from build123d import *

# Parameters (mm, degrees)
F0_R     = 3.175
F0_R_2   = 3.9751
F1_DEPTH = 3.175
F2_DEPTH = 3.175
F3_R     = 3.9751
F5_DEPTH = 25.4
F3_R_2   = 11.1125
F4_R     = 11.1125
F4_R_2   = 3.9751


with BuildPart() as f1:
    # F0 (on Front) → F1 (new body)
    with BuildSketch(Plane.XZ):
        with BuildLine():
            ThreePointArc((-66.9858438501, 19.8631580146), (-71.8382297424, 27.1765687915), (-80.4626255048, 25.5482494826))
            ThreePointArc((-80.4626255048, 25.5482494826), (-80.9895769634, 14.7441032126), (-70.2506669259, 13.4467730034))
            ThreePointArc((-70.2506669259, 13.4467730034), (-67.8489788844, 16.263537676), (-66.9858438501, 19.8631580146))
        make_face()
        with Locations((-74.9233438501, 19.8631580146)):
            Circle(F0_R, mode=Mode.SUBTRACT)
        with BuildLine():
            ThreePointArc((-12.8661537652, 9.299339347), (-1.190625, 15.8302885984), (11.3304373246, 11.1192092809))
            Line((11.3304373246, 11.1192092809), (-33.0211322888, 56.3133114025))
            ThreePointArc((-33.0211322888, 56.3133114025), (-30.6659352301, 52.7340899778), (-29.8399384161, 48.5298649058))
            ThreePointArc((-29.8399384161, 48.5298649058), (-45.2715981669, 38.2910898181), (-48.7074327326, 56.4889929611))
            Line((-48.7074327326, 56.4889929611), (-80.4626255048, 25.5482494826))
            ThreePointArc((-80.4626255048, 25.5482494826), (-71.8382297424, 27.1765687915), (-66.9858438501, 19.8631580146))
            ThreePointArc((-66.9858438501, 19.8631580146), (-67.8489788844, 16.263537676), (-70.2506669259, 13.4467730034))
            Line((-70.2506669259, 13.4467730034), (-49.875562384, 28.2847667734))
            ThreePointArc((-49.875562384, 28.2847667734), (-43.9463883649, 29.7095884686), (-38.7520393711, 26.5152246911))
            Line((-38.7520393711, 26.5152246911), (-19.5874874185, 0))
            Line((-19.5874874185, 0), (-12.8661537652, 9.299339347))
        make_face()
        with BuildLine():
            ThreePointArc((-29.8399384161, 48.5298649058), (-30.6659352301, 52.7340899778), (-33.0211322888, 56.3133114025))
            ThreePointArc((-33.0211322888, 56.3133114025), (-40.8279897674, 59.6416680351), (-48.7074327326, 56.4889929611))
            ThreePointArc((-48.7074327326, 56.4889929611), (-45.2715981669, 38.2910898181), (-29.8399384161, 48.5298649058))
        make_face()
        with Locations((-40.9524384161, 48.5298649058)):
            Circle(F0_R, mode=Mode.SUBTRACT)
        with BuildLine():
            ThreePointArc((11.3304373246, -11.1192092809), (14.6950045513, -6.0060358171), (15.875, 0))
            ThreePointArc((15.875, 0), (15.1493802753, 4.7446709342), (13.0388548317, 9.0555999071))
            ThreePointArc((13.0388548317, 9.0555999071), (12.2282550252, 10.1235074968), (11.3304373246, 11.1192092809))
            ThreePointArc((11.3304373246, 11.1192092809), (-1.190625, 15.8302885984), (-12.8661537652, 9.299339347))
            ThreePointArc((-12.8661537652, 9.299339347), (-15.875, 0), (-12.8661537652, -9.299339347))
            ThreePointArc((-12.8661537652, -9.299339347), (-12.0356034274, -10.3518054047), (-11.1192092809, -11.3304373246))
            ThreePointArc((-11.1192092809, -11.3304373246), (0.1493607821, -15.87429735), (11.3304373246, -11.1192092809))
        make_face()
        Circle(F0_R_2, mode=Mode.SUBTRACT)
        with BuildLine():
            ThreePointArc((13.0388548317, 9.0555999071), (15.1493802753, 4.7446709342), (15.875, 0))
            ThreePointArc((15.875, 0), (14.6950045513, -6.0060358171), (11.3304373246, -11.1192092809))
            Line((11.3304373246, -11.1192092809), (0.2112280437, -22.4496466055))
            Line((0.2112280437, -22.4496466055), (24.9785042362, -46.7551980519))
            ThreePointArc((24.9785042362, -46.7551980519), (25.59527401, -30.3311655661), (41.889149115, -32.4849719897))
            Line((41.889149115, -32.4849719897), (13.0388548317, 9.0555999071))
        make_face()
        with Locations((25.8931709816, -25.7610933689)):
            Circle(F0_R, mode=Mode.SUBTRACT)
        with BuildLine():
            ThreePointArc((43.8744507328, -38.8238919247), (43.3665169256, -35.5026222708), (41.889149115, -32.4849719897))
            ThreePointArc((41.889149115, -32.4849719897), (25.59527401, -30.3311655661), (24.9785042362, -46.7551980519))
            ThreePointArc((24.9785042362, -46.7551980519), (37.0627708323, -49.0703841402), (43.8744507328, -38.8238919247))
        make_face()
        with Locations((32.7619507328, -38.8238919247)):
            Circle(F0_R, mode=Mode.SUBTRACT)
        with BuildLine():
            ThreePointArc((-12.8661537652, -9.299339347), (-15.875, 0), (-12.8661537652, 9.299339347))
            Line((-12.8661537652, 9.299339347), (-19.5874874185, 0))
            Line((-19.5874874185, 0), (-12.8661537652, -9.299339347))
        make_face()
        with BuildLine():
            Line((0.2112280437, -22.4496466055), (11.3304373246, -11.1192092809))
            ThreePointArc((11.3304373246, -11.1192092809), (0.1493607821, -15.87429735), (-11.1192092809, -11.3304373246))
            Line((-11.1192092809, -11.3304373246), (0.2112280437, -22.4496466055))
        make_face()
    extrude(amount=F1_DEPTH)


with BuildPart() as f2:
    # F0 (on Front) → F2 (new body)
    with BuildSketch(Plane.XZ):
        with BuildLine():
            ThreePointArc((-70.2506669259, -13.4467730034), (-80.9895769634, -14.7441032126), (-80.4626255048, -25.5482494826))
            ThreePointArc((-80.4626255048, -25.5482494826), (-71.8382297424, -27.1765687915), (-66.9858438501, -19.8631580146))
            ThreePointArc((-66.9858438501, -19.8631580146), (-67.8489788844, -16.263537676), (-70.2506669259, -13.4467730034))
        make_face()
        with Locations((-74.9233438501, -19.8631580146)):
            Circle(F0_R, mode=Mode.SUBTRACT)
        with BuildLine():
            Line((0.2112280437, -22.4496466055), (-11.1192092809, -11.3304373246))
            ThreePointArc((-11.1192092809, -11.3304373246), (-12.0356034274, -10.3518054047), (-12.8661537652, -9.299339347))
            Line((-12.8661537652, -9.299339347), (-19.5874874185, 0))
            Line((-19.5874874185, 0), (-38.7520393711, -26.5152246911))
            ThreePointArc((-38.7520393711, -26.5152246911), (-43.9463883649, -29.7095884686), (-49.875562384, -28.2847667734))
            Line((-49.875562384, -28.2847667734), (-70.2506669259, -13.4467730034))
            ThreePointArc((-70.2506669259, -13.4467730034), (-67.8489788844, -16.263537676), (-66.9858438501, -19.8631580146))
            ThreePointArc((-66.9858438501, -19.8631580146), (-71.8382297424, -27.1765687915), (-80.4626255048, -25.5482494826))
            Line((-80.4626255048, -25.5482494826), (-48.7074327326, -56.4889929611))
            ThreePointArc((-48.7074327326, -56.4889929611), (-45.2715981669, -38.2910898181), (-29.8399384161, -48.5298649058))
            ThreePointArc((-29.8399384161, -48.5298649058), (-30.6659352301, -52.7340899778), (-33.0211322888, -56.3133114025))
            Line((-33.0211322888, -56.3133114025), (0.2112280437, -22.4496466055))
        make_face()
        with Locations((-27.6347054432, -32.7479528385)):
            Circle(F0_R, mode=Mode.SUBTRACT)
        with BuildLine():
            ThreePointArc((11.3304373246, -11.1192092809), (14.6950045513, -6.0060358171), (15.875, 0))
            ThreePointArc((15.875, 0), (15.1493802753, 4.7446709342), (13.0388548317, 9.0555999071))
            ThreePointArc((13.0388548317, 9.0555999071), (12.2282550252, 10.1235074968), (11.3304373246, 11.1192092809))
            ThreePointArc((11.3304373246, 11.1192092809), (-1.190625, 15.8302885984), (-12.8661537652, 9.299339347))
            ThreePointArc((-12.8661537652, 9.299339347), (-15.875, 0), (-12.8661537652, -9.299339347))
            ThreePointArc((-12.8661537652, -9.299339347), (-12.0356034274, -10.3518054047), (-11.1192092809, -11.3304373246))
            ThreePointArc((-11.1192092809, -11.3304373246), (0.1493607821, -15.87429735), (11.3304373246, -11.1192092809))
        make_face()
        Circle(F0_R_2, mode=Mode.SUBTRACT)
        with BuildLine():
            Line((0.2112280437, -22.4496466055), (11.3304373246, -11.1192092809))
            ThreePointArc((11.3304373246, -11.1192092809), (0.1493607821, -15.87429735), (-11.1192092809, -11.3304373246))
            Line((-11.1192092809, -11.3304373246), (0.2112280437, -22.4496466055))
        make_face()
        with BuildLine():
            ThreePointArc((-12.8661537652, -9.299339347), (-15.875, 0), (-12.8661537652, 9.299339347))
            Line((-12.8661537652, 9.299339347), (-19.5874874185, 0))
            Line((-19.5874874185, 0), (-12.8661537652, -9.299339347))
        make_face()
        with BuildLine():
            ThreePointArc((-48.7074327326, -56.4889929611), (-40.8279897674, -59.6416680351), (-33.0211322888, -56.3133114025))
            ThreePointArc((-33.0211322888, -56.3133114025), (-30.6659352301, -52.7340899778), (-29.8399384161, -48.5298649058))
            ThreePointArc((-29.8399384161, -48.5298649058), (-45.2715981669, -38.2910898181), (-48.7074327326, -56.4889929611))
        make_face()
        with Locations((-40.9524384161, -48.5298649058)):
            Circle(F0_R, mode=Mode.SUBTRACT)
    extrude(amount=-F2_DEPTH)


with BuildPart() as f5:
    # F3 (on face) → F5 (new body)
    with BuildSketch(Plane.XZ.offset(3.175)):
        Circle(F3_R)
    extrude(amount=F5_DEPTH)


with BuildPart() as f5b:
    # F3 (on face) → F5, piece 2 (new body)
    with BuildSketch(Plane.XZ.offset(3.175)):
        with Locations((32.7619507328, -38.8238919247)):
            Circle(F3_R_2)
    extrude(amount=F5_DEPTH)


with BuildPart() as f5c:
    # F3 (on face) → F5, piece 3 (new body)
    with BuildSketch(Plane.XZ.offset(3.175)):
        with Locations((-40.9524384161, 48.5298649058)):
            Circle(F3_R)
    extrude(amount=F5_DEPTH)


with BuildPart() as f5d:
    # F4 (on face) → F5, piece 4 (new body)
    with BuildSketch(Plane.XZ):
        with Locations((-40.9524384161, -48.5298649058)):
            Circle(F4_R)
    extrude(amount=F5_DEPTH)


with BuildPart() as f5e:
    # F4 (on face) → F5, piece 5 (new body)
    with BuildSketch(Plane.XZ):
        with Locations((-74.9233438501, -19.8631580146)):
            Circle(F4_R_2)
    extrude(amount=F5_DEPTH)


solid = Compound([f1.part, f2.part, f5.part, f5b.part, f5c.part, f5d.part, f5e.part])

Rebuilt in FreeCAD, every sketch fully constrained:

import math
import FreeCAD as App
import Part
import Sketcher

V = App.Vector
Q = App.Units.Quantity

doc = App.newDocument("Part")
body = doc.addObject("PartDesign::Body", "Body")

# Sketch on XZ plane
sketch1 = doc.addObject("Sketcher::SketchObject", "Sketch")
body.addObject(sketch1)
sketch1.AttachmentSupport = (doc.XZ_Plane, [""])
sketch1.MapMode = "FlatFace"
sketch1.addGeometry([
    Part.ArcOfCircle(Part.Circle(V(-74.9, 19.9, 0), V(0, 0, 1), 7.9), math.radians(134), math.radians(306)),  # 0
    Part.LineSegment(V(-70.3, 13.4, 0), V(-49.9, 28.3, 0)),  # 1
    Part.ArcOfCircle(Part.Circle(V(-45.2, 21.9, 0), V(0, 0, 1), 8), math.radians(36), math.radians(126)),  # 2
    Part.LineSegment(V(-38.8, 26.5, 0), V(-19.6, 0, 0)),  # 3
    Part.LineSegment(V(-19.6, 0, 0), V(-12.9, -9.3, 0)),  # 4
    Part.ArcOfCircle(Part.Circle(V(0, 0, 0), V(0, 0, 1), 15.9), math.radians(-144.14), math.radians(-134.46)),  # 5
    Part.LineSegment(V(-11.1, -11.3, 0), V(0.2, -22.4, 0)),  # 6
    Part.LineSegment(V(0.2, -22.4, 0), V(25, -46.8, 0)),  # 7
    Part.ArcOfCircle(Part.Circle(V(32.8, -38.8, 0), V(0, 0, 1), 11.1), math.radians(-134), math.radians(0)),  # 8
    Part.ArcOfCircle(Part.Circle(V(32.8, -38.8, 0), V(0, 0, 1), 11.1), math.radians(0), math.radians(35)),  # 9
    Part.LineSegment(V(41.9, -32.5, 0), V(13, 9.1, 0)),  # 10
    Part.ArcOfCircle(Part.Circle(V(0, 0, 0), V(0, 0, 1), 15.9), math.radians(34.78), math.radians(44.46)),  # 11
    Part.LineSegment(V(11.3, 11.1, 0), V(-33, 56.3, 0)),  # 12
    Part.ArcOfCircle(Part.Circle(V(-41, 48.5, 0), V(0, 0, 1), 11.1), math.radians(44), math.radians(134)),  # 13
    Part.LineSegment(V(-48.7, 56.5, 0), V(-80.5, 25.5, 0)),  # 14
    Part.Circle(V(32.8, -38.8, 0), V(0, 0, 1), 3.2),  # 15
    Part.Circle(V(25.9, -25.8, 0), V(0, 0, 1), 3.2),  # 16
    Part.Circle(V(0, 0, 0), V(0, 0, 1), 4),  # 17
    Part.Circle(V(-74.9, 19.9, 0), V(0, 0, 1), 3.2),  # 18
    Part.Circle(V(-41, 48.5, 0), V(0, 0, 1), 3.2),  # 19
], False)
sketch1.addConstraint([
    Sketcher.Constraint("Tangent", 0, 2, 1, 1),
    Sketcher.Constraint("Tangent", 1, 2, 2, 2),
    Sketcher.Constraint("Tangent", 2, 1, 3, 1),
    Sketcher.Constraint("Coincident", 3, 2, 4, 1),
    Sketcher.Constraint("Tangent", 4, 2, 5, 1),
    Sketcher.Constraint("Tangent", 5, 2, 6, 1),
    Sketcher.Constraint("Coincident", 6, 2, 7, 1),
    Sketcher.Constraint("Tangent", 7, 2, 8, 1),
    Sketcher.Constraint("Tangent", 8, 2, 9, 1),
    Sketcher.Constraint("Tangent", 9, 2, 10, 1),
    Sketcher.Constraint("Tangent", 10, 2, 11, 1),
    Sketcher.Constraint("Tangent", 11, 2, 12, 1),
    Sketcher.Constraint("Tangent", 12, 2, 13, 1),
    Sketcher.Constraint("Tangent", 13, 2, 14, 1),
    Sketcher.Constraint("Tangent", 14, 2, 0, 1),
    Sketcher.Constraint("Coincident", 5, 3, -1, 1),
    Sketcher.Constraint("Coincident", 11, 3, -1, 1),
    Sketcher.Constraint("Coincident", 17, 3, -1, 1),
    Sketcher.Constraint("Coincident", 15, 3, 8, 3),
    Sketcher.Constraint("Coincident", 18, 3, 0, 3),
    Sketcher.Constraint("Coincident", 19, 3, 13, 3),
    Sketcher.Constraint("Equal", 8, 9),
    Sketcher.Constraint("Equal", 5, 11),
    Sketcher.Constraint("Equal", 9, 13),
    Sketcher.Constraint("Equal", 15, 16),
    Sketcher.Constraint("Equal", 16, 18),
    Sketcher.Constraint("Equal", 18, 19),
    Sketcher.Constraint("PointOnObject", 3, 2, -1),
    Sketcher.Constraint("Parallel", 3, 4),
    Sketcher.Constraint("Parallel", 6, 7),
    Sketcher.Constraint("Horizontal", 15, 3, 8, 2),
    Sketcher.Constraint("Diameter", 15, Q("0.25 in")),
    Sketcher.Constraint("Diameter", 17, Q("0.313 in")),
    Sketcher.Constraint("Radius", 0, Q("0.3125 in")),
    Sketcher.Constraint("Radius", 2, Q("0.313 in")),
    Sketcher.Constraint("Radius", 5, Q("0.625 in")),
    Sketcher.Constraint("Radius", 8, Q("0.4375 in")),
    Sketcher.Constraint("Distance", 6, Q("0.625 in")),
    Sketcher.Constraint("DistanceY", 5, 2, 10, 2, Q("0.8025999 in")),
    Sketcher.Constraint("DistanceY", 7, 2, -1, 1, Q("46.755198 mm")),
    Sketcher.Constraint("DistanceY", 9, 3, 16, 3, Q("13.062799 mm")),
    Sketcher.Constraint("DistanceY", 1, 2, 13, 3, Q("20.245098 mm")),
    Sketcher.Constraint("DistanceX", 13, 3, 2, 1, Q("2.200399 mm")),
    Sketcher.Constraint("DistanceX", 13, 2, 12, 2, Q("15.6863 mm")),
    Sketcher.Constraint("Distance", 3, Q("32.716008 mm")),
    Sketcher.Constraint("Distance", 4, Q("11.474059 mm")),
    Sketcher.Constraint("DistanceY", -1, 1, 0, 3, Q("19.863158 mm")),
    Sketcher.Constraint("DistanceX", -1, 1, 16, 3, Q("25.893171 mm")),
])
pad1 = doc.addObject("PartDesign::Pad", "Pad")
body.addObject(pad1)
pad1.Profile = sketch1
pad1.Length = Q("0.125 in")
body2 = doc.addObject("PartDesign::Body", "Body001")

# Sketch on XZ plane
sketch2 = doc.addObject("Sketcher::SketchObject", "Sketch001")
body2.addObject(sketch2)
sketch2.AttachmentSupport = (doc.getObject("XZ_Plane001"), [""])
sketch2.MapMode = "FlatFace"
sketch2.addGeometry([
    Part.ArcOfCircle(Part.Circle(V(-74.9, -19.9, 0), V(0, 0, 1), 7.9), math.radians(54), math.radians(226)),  # 0
    Part.LineSegment(V(-80.5, -25.5, 0), V(-48.7, -56.5, 0)),  # 1
    Part.ArcOfCircle(Part.Circle(V(-41, -48.5, 0), V(0, 0, 1), 11.1), math.radians(-134), math.radians(-44)),  # 2
    Part.LineSegment(V(-33, -56.3, 0), V(11.3, -11.1, 0)),  # 3
    Part.ArcOfCircle(Part.Circle(V(0, 0, 0), V(0, 0, 1), 15.9), math.radians(-44), math.radians(0)),  # 4
    Part.ArcOfCircle(Part.Circle(V(0, 0, 0), V(0, 0, 1), 15.9), math.radians(0), math.radians(35)),  # 5
    Part.ArcOfCircle(Part.Circle(V(0, 0, 0), V(0, 0, 1), 15.9), math.radians(34.78), math.radians(44.46)),  # 6
    Part.ArcOfCircle(Part.Circle(V(0, 0, 0), V(0, 0, 1), 15.9), math.radians(44), math.radians(144)),  # 7
    Part.LineSegment(V(-12.9, 9.3, 0), V(-19.6, 0, 0)),  # 8
    Part.LineSegment(V(-19.6, 0, 0), V(-38.8, -26.5, 0)),  # 9
    Part.ArcOfCircle(Part.Circle(V(-45.2, -21.9, 0), V(0, 0, 1), 8), math.radians(-126), math.radians(-36)),  # 10
    Part.LineSegment(V(-49.9, -28.3, 0), V(-70.3, -13.4, 0)),  # 11
    Part.Circle(V(-41, -48.5, 0), V(0, 0, 1), 3.2),  # 12
    Part.Circle(V(-27.6, -32.7, 0), V(0, 0, 1), 3.2),  # 13
    Part.Circle(V(-74.9, -19.9, 0), V(0, 0, 1), 3.2),  # 14
    Part.Circle(V(0, 0, 0), V(0, 0, 1), 4),  # 15
], False)
sketch2.addConstraint([
    Sketcher.Constraint("Tangent", 0, 2, 1, 1),
    Sketcher.Constraint("Tangent", 1, 2, 2, 1),
    Sketcher.Constraint("Tangent", 2, 2, 3, 1),
    Sketcher.Constraint("Tangent", 3, 2, 4, 1),
    Sketcher.Constraint("Tangent", 4, 2, 5, 1),
    Sketcher.Constraint("Tangent", 5, 2, 6, 1),
    Sketcher.Constraint("Tangent", 6, 2, 7, 1),
    Sketcher.Constraint("Tangent", 7, 2, 8, 1),
    Sketcher.Constraint("Coincident", 8, 2, 9, 1),
    Sketcher.Constraint("Tangent", 9, 2, 10, 2),
    Sketcher.Constraint("Tangent", 10, 1, 11, 1),
    Sketcher.Constraint("Tangent", 11, 2, 0, 1),
    Sketcher.Constraint("Coincident", 4, 3, -1, 1),
    Sketcher.Constraint("Coincident", 6, 3, -1, 1),
    Sketcher.Constraint("Coincident", 15, 3, -1, 1),
    Sketcher.Constraint("Coincident", 12, 3, 2, 3),
    Sketcher.Constraint("Coincident", 14, 3, 0, 3),
    Sketcher.Constraint("Equal", 6, 7),
    Sketcher.Constraint("Equal", 12, 13),
    Sketcher.Constraint("Equal", 13, 14),
    Sketcher.Constraint("PointOnObject", 4, 2, -1),
    Sketcher.Constraint("PointOnObject", 8, 2, -1),
    Sketcher.Constraint("Parallel", 8, 9),
    Sketcher.Constraint("Vertical", 3, 2, 6, 2),
    Sketcher.Constraint("Diameter", 12, Q("0.25 in")),
    Sketcher.Constraint("Diameter", 15, Q("0.313 in")),
    Sketcher.Constraint("Radius", 0, Q("0.3125 in")),
    Sketcher.Constraint("Radius", 2, Q("0.4375 in")),
    Sketcher.Constraint("Radius", 4, Q("0.625 in")),
    Sketcher.Constraint("Radius", 10, Q("0.313 in")),
    Sketcher.Constraint("DistanceY", -1, 1, 5, 2, Q("9.0556 mm")),
    Sketcher.Constraint("DistanceX", 1, 2, 2, 2, Q("15.6863 mm")),
    Sketcher.Constraint("DistanceX", 2, 3, 9, 2, Q("2.200399 mm")),
    Sketcher.Constraint("DistanceY", 2, 3, 10, 1, Q("20.245098 mm")),
    Sketcher.Constraint("Distance", 8, Q("11.474059 mm")),
    Sketcher.Constraint("Distance", 9, Q("32.716008 mm")),
    Sketcher.Constraint("DistanceY", 0, 3, -1, 1, Q("19.863158 mm")),
    Sketcher.Constraint("DistanceX", 14, 3, 13, 3, Q("47.288638 mm")),
    Sketcher.Constraint("DistanceY", 1, 2, 13, 3, Q("23.74104 mm")),
])
pad2 = doc.addObject("PartDesign::Pad", "Pad001")
body2.addObject(pad2)
pad2.Profile = sketch2
pad2.Length = Q("0.125 in")
pad2.Reversed = True
body3 = doc.addObject("PartDesign::Body", "Body002")

# Sketch on XZ plane
sketch3 = doc.addObject("Sketcher::SketchObject", "Sketch002")
body3.addObject(sketch3)
sketch3.AttachmentSupport = (doc.getObject("XZ_Plane002"), [""])
sketch3.MapMode = "FlatFace"
sketch3.AttachmentOffset = App.Placement(V(0, 0, 0.125 * 25.4), App.Rotation())
sketch3.addGeometry(Part.Circle(V(0, 0, 0), V(0, 0, 1), 4), False)
sketch3.addConstraint([
    Sketcher.Constraint("Coincident", 0, 3, -1, 1),
    Sketcher.Constraint("Diameter", 0, Q("0.313 in")),
])
pad3 = doc.addObject("PartDesign::Pad", "Pad002")
body3.addObject(pad3)
pad3.Profile = sketch3
pad3.Length = Q("1 in")
body4 = doc.addObject("PartDesign::Body", "Body003")

# Sketch on XZ plane
sketch4 = doc.addObject("Sketcher::SketchObject", "Sketch003")
body4.addObject(sketch4)
sketch4.AttachmentSupport = (doc.getObject("XZ_Plane003"), [""])
sketch4.MapMode = "FlatFace"
sketch4.AttachmentOffset = App.Placement(V(0, 0, 0.125 * 25.4), App.Rotation())
sketch4.addGeometry(Part.Circle(V(33, -39, 0), V(0, 0, 1), 11), False)
sketch4.addConstraint([
    Sketcher.Constraint("Diameter", 0, Q("0.875 in")),
    Sketcher.Constraint("DistanceX", -1, 1, 0, 3, Q("32.761951 mm")),
    Sketcher.Constraint("DistanceY", 0, 3, -1, 1, Q("38.823892 mm")),
])
pad4 = doc.addObject("PartDesign::Pad", "Pad003")
body4.addObject(pad4)
pad4.Profile = sketch4
pad4.Length = Q("1 in")
body5 = doc.addObject("PartDesign::Body", "Body004")

# Sketch on XZ plane
sketch5 = doc.addObject("Sketcher::SketchObject", "Sketch004")
body5.addObject(sketch5)
sketch5.AttachmentSupport = (doc.getObject("XZ_Plane004"), [""])
sketch5.MapMode = "FlatFace"
sketch5.AttachmentOffset = App.Placement(V(0, 0, 0.125 * 25.4), App.Rotation())
sketch5.addGeometry(Part.Circle(V(-41, 48.5, 0), V(0, 0, 1), 4), False)
sketch5.addConstraint([
    Sketcher.Constraint("Diameter", 0, Q("0.313 in")),
    Sketcher.Constraint("DistanceX", 0, 3, -1, 1, Q("40.952438 mm")),
    Sketcher.Constraint("DistanceY", -1, 1, 0, 3, Q("48.529865 mm")),
])
pad5 = doc.addObject("PartDesign::Pad", "Pad004")
body5.addObject(pad5)
pad5.Profile = sketch5
pad5.Length = Q("1 in")
body6 = doc.addObject("PartDesign::Body", "Body005")

# Sketch on XZ plane
sketch6 = doc.addObject("Sketcher::SketchObject", "Sketch005")
body6.addObject(sketch6)
sketch6.AttachmentSupport = (doc.getObject("XZ_Plane005"), [""])
sketch6.MapMode = "FlatFace"
sketch6.addGeometry(Part.Circle(V(-41, -49, 0), V(0, 0, 1), 11), False)
sketch6.addConstraint([
    Sketcher.Constraint("Diameter", 0, Q("0.875 in")),
    Sketcher.Constraint("DistanceX", 0, 3, -1, 1, Q("40.952438 mm")),
    Sketcher.Constraint("DistanceY", 0, 3, -1, 1, Q("48.529865 mm")),
])
pad6 = doc.addObject("PartDesign::Pad", "Pad005")
body6.addObject(pad6)
pad6.Profile = sketch6
pad6.Length = Q("1 in")
body7 = doc.addObject("PartDesign::Body", "Body006")

# Sketch on XZ plane
sketch7 = doc.addObject("Sketcher::SketchObject", "Sketch006")
body7.addObject(sketch7)
sketch7.AttachmentSupport = (doc.getObject("XZ_Plane006"), [""])
sketch7.MapMode = "FlatFace"
sketch7.addGeometry(Part.Circle(V(-74.9, -19.9, 0), V(0, 0, 1), 4), False)
sketch7.addConstraint([
    Sketcher.Constraint("Diameter", 0, Q("0.313 in")),
    Sketcher.Constraint("DistanceY", 0, 3, -1, 1, Q("19.863158 mm")),
    Sketcher.Constraint("DistanceX", 0, 3, -1, 1, Q("74.923344 mm")),
])
pad7 = doc.addObject("PartDesign::Pad", "Pad006")
body7.addObject(pad7)
pad7.Profile = sketch7
pad7.Length = Q("1 in")

doc.recompute()
